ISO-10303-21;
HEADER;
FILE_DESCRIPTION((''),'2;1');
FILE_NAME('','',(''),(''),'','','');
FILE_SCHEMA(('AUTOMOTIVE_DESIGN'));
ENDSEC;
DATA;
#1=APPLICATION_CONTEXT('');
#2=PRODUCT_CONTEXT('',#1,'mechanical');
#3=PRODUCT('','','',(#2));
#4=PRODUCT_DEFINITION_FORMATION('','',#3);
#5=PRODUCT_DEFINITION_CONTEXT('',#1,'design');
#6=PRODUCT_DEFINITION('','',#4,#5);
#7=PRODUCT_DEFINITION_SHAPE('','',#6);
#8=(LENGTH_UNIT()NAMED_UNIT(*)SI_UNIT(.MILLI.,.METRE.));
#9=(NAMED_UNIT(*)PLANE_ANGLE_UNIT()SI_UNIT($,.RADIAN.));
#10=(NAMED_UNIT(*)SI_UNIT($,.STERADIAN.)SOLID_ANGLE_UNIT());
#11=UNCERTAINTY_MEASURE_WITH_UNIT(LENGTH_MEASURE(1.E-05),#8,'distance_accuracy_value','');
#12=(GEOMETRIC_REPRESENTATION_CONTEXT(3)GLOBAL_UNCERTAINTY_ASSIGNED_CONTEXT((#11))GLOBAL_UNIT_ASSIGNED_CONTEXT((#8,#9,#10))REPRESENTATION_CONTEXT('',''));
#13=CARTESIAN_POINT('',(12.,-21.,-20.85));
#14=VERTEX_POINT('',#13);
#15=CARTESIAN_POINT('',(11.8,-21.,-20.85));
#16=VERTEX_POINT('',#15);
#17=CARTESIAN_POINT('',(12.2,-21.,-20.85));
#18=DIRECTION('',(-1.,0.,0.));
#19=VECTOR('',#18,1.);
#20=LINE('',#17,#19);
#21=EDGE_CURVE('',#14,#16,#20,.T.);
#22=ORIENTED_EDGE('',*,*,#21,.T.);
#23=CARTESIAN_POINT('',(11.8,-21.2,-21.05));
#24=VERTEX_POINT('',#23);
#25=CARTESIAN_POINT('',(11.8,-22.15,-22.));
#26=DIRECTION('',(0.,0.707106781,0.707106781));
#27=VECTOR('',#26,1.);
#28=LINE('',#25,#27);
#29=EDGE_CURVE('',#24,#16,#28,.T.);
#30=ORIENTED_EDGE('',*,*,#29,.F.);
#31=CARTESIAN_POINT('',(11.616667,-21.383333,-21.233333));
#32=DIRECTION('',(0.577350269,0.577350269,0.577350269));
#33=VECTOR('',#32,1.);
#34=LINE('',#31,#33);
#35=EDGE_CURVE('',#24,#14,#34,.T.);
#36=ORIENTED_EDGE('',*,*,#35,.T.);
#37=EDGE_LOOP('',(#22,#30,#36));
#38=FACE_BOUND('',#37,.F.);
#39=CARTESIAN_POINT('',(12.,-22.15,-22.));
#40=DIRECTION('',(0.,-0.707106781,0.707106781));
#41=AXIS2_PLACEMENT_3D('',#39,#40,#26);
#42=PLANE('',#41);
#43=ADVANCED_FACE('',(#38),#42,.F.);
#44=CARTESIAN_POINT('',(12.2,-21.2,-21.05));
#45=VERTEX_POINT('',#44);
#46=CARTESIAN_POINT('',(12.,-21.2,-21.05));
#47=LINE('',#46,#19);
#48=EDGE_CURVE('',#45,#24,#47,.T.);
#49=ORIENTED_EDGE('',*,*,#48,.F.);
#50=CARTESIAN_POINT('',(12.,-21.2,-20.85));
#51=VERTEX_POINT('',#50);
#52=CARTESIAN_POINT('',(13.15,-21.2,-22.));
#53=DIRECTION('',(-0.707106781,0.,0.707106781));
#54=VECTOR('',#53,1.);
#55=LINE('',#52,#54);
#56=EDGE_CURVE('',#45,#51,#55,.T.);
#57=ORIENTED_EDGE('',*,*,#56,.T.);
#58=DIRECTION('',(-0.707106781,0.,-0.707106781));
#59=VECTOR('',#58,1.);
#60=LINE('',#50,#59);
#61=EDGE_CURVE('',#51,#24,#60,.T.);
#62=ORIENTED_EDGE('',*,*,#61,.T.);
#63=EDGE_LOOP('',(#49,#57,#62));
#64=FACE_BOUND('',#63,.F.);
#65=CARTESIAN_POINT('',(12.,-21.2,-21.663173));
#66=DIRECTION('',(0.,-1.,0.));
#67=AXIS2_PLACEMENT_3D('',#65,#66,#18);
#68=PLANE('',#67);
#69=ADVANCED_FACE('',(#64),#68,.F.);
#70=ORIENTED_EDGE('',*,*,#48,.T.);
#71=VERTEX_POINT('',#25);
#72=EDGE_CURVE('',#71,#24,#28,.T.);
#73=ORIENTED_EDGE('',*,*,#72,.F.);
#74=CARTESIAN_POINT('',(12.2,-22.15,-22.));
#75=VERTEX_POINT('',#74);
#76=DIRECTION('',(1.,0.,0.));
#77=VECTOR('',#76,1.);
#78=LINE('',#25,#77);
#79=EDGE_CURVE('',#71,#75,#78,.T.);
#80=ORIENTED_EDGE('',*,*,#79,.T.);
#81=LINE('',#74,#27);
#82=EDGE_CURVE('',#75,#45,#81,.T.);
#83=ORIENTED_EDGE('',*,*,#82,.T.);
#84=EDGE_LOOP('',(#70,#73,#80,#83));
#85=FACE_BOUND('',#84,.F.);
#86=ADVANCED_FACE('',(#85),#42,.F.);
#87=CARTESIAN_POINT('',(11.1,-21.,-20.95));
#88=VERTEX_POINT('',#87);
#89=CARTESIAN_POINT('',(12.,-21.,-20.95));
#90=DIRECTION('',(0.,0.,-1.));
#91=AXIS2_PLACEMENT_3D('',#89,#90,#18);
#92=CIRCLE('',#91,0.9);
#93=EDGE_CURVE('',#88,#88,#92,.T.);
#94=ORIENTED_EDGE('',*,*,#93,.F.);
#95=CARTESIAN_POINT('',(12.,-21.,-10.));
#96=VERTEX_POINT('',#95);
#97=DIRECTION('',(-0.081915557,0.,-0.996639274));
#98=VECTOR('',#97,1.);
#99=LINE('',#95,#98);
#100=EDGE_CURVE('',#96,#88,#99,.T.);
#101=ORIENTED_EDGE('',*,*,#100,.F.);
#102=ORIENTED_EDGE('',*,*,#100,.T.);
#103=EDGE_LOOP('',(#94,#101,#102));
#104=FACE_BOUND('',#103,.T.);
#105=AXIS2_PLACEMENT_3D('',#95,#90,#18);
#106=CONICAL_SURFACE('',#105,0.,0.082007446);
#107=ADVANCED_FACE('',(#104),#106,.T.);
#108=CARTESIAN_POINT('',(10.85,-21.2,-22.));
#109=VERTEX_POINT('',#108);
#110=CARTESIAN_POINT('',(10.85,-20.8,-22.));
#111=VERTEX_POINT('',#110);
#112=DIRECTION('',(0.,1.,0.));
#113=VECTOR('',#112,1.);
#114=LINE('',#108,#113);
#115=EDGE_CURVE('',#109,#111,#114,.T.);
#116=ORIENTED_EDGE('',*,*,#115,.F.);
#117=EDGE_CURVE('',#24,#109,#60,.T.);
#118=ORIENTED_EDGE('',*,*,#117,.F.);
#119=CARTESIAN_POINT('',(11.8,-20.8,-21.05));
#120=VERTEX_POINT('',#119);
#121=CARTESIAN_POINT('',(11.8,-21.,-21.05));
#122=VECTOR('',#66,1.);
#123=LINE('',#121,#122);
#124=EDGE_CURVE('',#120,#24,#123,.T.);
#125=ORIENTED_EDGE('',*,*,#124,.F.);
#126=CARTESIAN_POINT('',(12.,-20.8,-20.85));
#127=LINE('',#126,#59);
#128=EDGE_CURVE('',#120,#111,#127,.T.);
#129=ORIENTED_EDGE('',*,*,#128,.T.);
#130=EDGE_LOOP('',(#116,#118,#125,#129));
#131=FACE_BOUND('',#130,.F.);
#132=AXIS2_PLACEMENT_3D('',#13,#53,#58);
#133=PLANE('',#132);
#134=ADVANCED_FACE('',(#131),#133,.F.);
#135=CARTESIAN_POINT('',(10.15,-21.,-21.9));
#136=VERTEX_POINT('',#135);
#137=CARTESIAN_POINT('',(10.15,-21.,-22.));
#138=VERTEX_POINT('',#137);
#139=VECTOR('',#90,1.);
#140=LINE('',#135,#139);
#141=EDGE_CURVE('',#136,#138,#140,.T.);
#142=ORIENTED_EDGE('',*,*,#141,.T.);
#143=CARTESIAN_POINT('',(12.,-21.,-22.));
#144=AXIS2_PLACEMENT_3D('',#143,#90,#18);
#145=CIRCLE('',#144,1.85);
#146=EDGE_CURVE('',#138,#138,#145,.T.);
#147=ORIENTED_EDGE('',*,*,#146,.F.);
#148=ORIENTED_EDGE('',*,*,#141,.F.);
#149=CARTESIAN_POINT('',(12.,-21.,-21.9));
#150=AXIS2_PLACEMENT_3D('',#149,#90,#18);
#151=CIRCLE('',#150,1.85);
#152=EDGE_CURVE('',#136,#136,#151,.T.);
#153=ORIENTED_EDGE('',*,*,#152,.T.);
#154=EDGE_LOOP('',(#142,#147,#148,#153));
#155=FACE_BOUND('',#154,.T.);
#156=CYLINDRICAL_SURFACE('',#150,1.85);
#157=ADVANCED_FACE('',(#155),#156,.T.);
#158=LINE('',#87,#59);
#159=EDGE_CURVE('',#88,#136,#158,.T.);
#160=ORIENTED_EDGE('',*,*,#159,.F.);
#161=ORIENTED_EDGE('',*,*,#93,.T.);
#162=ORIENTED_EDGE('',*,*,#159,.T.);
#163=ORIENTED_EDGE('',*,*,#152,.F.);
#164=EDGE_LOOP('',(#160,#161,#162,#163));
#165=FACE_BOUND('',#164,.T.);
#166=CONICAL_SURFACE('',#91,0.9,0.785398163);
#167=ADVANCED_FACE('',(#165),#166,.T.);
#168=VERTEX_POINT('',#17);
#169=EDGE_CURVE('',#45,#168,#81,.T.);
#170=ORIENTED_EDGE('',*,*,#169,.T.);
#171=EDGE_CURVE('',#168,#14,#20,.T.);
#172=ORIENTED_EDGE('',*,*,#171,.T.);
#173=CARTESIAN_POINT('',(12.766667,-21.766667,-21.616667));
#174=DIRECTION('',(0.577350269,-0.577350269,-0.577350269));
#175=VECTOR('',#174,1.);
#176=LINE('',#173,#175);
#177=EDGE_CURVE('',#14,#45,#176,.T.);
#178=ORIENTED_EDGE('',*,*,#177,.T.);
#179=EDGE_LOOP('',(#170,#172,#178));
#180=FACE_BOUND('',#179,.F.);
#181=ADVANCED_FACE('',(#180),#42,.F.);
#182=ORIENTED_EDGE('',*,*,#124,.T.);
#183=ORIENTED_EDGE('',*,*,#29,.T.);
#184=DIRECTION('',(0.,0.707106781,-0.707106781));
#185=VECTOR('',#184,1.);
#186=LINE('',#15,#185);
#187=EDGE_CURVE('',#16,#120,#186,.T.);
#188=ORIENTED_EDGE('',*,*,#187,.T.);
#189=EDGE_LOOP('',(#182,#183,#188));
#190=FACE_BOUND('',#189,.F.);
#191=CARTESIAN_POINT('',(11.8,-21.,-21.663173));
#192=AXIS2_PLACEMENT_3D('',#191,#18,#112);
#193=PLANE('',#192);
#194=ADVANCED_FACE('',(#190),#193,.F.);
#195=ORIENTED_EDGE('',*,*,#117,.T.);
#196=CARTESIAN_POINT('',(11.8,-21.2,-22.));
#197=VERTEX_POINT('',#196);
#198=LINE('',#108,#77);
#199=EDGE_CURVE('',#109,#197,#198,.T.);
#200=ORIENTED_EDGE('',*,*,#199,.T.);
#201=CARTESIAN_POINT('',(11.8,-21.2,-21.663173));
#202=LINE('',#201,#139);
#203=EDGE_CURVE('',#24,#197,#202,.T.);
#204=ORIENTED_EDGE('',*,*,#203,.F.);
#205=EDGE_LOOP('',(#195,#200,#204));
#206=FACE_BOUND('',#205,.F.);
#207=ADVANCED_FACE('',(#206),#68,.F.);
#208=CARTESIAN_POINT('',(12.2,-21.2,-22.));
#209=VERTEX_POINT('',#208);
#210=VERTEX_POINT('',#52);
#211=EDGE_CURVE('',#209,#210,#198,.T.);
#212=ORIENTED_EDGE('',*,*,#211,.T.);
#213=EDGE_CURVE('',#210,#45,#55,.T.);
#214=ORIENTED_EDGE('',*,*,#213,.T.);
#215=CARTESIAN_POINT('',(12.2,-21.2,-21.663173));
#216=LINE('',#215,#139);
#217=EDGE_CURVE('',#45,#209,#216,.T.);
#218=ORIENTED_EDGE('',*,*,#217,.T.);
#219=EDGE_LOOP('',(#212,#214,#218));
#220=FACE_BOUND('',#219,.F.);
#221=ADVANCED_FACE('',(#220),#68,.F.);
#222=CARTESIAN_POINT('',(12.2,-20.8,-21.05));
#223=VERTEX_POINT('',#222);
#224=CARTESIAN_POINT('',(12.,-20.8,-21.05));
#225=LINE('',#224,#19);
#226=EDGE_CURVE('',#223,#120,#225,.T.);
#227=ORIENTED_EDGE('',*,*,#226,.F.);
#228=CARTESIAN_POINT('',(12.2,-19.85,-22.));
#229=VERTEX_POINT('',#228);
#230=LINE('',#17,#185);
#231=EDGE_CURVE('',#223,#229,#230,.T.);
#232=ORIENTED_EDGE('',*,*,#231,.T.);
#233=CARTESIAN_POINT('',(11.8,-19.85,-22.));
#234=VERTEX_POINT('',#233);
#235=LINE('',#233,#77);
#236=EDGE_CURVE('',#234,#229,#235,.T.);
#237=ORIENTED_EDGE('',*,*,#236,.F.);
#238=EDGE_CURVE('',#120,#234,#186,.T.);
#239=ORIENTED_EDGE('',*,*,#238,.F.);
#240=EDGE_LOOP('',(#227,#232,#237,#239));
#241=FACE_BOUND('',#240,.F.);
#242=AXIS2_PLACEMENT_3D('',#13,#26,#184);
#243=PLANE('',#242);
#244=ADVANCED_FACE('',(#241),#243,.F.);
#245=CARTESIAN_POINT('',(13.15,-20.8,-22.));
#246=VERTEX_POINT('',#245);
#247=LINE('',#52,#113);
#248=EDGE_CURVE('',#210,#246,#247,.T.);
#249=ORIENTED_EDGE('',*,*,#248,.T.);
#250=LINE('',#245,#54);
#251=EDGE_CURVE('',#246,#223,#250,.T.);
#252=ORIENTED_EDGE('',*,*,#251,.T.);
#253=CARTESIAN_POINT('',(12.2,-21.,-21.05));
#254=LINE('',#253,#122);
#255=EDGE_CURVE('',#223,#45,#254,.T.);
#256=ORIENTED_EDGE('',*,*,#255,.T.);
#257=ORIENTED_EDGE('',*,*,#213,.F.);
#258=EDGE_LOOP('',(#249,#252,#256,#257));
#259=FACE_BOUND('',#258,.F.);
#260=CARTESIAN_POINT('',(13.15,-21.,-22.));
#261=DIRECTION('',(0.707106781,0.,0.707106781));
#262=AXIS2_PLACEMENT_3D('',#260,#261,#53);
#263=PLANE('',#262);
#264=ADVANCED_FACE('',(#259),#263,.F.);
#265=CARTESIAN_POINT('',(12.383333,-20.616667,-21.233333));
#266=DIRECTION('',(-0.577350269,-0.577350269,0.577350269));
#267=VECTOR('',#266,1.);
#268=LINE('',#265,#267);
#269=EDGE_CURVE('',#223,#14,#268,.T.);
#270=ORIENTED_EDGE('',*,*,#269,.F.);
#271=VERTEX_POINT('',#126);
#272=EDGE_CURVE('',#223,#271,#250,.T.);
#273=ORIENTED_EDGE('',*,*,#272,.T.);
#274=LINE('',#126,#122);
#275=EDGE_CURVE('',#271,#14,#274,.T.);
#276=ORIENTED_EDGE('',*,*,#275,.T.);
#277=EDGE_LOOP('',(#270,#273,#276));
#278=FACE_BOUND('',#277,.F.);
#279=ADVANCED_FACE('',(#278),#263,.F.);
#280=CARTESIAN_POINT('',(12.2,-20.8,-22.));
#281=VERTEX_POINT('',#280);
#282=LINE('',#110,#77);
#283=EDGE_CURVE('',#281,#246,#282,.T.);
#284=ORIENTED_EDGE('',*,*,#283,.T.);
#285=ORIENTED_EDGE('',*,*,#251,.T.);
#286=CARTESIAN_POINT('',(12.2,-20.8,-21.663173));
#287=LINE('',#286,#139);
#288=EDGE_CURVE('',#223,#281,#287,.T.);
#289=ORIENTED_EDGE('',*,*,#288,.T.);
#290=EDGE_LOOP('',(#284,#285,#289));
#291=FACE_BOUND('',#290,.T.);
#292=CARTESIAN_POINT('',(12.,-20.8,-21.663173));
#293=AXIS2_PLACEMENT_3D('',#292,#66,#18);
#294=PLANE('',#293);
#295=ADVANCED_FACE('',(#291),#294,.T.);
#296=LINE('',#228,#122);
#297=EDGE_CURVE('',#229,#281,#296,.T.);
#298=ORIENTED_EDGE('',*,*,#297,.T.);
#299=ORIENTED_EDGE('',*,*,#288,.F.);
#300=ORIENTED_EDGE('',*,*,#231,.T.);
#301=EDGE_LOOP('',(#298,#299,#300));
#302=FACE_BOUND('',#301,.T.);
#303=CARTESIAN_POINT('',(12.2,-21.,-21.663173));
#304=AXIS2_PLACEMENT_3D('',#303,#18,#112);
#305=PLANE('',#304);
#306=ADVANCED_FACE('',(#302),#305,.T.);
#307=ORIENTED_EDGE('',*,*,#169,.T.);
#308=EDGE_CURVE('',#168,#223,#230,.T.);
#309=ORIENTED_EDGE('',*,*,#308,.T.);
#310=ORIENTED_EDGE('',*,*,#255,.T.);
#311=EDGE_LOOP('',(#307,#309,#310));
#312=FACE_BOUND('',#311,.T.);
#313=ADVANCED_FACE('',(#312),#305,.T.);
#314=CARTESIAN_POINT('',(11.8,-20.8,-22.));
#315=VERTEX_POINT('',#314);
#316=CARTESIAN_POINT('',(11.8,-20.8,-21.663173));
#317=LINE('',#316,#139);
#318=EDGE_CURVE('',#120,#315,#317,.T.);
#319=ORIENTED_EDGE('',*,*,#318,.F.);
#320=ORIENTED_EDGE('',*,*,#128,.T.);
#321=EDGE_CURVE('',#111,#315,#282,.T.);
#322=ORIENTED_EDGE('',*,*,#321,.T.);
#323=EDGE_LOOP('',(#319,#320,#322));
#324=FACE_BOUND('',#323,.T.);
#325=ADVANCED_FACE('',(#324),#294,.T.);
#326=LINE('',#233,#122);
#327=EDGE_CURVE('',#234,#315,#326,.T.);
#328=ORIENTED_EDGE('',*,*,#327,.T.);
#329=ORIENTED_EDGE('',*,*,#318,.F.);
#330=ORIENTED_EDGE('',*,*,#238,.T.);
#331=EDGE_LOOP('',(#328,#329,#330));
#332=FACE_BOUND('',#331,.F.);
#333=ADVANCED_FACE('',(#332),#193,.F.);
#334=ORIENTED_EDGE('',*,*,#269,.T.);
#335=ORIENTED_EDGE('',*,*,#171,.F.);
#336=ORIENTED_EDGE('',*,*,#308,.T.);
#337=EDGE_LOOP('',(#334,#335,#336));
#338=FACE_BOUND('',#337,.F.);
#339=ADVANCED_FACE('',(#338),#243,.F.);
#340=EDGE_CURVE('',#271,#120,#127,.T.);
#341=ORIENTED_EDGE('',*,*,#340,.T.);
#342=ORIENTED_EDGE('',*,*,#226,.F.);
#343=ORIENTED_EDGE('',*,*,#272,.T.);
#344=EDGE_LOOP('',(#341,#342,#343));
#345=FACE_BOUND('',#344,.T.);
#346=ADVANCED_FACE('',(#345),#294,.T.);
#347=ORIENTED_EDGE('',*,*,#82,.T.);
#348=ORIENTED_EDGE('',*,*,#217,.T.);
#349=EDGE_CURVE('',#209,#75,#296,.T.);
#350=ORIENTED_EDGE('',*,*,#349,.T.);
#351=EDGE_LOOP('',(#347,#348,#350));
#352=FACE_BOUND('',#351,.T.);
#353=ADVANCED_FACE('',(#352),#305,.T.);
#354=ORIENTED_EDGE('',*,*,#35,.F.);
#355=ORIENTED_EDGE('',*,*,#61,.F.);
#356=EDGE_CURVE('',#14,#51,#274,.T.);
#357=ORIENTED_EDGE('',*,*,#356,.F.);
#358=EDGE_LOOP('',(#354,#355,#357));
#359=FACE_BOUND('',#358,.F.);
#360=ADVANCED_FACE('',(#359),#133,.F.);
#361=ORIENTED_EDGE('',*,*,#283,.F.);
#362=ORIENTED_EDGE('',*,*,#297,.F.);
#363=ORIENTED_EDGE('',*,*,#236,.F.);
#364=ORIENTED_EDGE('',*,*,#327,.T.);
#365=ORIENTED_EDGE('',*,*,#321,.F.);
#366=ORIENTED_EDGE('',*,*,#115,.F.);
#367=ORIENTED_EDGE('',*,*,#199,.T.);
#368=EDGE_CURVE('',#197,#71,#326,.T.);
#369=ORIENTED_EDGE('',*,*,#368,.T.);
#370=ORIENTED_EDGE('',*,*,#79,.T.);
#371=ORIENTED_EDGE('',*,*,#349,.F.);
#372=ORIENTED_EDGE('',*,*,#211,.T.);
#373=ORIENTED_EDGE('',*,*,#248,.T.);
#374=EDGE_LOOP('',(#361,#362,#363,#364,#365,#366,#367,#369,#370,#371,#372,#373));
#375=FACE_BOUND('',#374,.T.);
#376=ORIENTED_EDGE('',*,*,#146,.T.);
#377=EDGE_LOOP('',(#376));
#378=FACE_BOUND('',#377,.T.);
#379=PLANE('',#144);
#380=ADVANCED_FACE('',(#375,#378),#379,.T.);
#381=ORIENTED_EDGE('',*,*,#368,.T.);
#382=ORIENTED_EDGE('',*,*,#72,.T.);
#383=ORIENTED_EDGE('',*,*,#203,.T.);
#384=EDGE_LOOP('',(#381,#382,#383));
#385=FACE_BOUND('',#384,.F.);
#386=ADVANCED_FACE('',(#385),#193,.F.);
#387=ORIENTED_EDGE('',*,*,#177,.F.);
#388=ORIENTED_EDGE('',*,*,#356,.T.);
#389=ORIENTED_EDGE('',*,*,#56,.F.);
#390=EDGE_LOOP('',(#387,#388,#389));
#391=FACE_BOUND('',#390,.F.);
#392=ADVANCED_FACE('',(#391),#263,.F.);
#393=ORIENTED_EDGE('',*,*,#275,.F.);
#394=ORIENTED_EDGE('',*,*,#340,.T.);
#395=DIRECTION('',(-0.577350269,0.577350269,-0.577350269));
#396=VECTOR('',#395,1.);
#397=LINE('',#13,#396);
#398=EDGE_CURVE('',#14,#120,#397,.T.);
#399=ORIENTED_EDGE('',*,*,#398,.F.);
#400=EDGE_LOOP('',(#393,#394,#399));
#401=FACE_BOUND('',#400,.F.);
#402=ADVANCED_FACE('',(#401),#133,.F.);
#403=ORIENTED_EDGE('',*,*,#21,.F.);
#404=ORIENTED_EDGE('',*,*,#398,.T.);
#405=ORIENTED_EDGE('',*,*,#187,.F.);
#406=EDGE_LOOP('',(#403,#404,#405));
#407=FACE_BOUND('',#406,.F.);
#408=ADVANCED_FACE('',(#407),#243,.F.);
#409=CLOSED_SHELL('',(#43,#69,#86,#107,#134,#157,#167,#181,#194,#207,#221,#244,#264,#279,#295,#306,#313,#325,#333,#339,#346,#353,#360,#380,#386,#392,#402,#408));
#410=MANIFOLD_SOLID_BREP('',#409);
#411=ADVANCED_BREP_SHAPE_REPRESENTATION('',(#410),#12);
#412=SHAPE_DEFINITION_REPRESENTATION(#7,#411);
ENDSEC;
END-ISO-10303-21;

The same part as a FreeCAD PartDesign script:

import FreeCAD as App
import Part
import Sketcher
from FreeCAD import Vector
Q = App.Units.Quantity

doc = App.newDocument("Part")
body = doc.addObject("PartDesign::Body", "Body")

sketch1 = doc.addObject("Sketcher::SketchObject", "Sketch")
body.addObject(sketch1)
sketch1.AttachmentSupport = (doc.XZ_Plane, [""])
sketch1.MapMode = "FlatFace"
sketch1.addGeometry(Part.LineSegment(Vector(0, 0, 0), Vector(0, -12, 0)), False)
sketch1.addGeometry(Part.LineSegment(Vector(0, -12, 0), Vector(0.9, -1.05, 0)), False)
sketch1.addGeometry(Part.LineSegment(Vector(0.9, -1.05, 0), Vector(1.85, -0.1, 0)), False)
sketch1.addGeometry(Part.LineSegment(Vector(1.85, -0.1, 0), Vector(1.85, 0, 0)), False)
sketch1.addGeometry(Part.LineSegment(Vector(1.85, 0, 0), Vector(0, 0, 0)), False)
sketch1.addConstraint(Sketcher.Constraint("Coincident", 0, 2, 1, 1))
sketch1.addConstraint(Sketcher.Constraint("Coincident", 1, 2, 2, 1))
sketch1.addConstraint(Sketcher.Constraint("Coincident", 2, 2, 3, 1))
sketch1.addConstraint(Sketcher.Constraint("Coincident", 3, 2, 4, 1))
sketch1.addConstraint(Sketcher.Constraint("Coincident", 4, 2, 0, 1))
sketch1.addConstraint(Sketcher.Constraint("Vertical", 0))
sketch1.addConstraint(Sketcher.Constraint("Vertical", 3))
sketch1.addConstraint(Sketcher.Constraint("Horizontal", 4))
sketch1.addConstraint(Sketcher.Constraint("Coincident", 4, 2, -1, 1))
sketch1.addConstraint(Sketcher.Constraint("DistanceY", 0, 2, 0, 1, 12.0))
sketch1.addConstraint(Sketcher.Constraint("Angle", 2, Q("45 deg")))
sketch1.addConstraint(Sketcher.Constraint("DistanceY", 3, 1, 3, 2, 0.1))
sketch1.addConstraint(Sketcher.Constraint("DistanceX", 4, 2, 4, 1, 1.85))
sketch1.addConstraint(Sketcher.Constraint("DistanceX", -1, 1, 1, 2, 0.9))
revolution = doc.addObject("PartDesign::Revolution", "Revolution")
body.addObject(revolution)
revolution.Profile = sketch1
revolution.ReferenceAxis = (sketch1, ["V_Axis"])
revolution.Angle = 360

sketch2 = doc.addObject("Sketcher::SketchObject", "Sketch001")
body.addObject(sketch2)
sketch2.AttachmentSupport = (doc.XZ_Plane, [""])
sketch2.MapMode = "FlatFace"
sketch2.addGeometry(Part.LineSegment(Vector(-1.1, 0, 0), Vector(0, -1.1, 0)), False)
sketch2.addGeometry(Part.LineSegment(Vector(0, -1.1, 0), Vector(1.1, 0, 0)), False)
sketch2.addGeometry(Part.LineSegment(Vector(1.1, 0, 0), Vector(-1.1, 0, 0)), False)
sketch2.addConstraint(Sketcher.Constraint("Coincident", 0, 2, 1, 1))
sketch2.addConstraint(Sketcher.Constraint("Coincident", 1, 2, 2, 1))
sketch2.addConstraint(Sketcher.Constraint("Coincident", 2, 2, 0, 1))
sketch2.addConstraint(Sketcher.Constraint("Horizontal", 2))
sketch2.addConstraint(Sketcher.Constraint("Symmetric", 1, 2, 2, 2, -1, 1))
sketch2.addConstraint(Sketcher.Constraint("PointOnObject", 0, 2, -2))
sketch2.addConstraint(Sketcher.Constraint("Perpendicular", 0, 1))
sketch2.addConstraint(Sketcher.Constraint("DistanceX", 2, 2, 2, 1, 2.3))
pocket1 = doc.addObject("PartDesign::Pocket", "Pocket")
body.addObject(pocket1)
pocket1.Profile = sketch2
pocket1.Length = 0.4
pocket1.Midplane = True
doc.recompute()

polarpattern = doc.addObject("PartDesign::PolarPattern", "PolarPattern")
body.addObject(polarpattern)
polarpattern.Originals = [pocket1]
polarpattern.Axis = (doc.Z_Axis, [""])
polarpattern.Angle = 90
polarpattern.Occurrences = 2
body.Tip = polarpattern
body2 = doc.addObject("PartDesign::Body", "Body001")
doc.recompute()

body.Placement = App.Placement(Vector(12, -21, -22), App.Rotation(Vector(0, 1, 0), 180))
boolean = doc.addObject("PartDesign::Boolean", "Boolean")
body2.addObject(boolean)
boolean.Type = "Fuse"
boolean.addObjects([body])

doc.recompute()
